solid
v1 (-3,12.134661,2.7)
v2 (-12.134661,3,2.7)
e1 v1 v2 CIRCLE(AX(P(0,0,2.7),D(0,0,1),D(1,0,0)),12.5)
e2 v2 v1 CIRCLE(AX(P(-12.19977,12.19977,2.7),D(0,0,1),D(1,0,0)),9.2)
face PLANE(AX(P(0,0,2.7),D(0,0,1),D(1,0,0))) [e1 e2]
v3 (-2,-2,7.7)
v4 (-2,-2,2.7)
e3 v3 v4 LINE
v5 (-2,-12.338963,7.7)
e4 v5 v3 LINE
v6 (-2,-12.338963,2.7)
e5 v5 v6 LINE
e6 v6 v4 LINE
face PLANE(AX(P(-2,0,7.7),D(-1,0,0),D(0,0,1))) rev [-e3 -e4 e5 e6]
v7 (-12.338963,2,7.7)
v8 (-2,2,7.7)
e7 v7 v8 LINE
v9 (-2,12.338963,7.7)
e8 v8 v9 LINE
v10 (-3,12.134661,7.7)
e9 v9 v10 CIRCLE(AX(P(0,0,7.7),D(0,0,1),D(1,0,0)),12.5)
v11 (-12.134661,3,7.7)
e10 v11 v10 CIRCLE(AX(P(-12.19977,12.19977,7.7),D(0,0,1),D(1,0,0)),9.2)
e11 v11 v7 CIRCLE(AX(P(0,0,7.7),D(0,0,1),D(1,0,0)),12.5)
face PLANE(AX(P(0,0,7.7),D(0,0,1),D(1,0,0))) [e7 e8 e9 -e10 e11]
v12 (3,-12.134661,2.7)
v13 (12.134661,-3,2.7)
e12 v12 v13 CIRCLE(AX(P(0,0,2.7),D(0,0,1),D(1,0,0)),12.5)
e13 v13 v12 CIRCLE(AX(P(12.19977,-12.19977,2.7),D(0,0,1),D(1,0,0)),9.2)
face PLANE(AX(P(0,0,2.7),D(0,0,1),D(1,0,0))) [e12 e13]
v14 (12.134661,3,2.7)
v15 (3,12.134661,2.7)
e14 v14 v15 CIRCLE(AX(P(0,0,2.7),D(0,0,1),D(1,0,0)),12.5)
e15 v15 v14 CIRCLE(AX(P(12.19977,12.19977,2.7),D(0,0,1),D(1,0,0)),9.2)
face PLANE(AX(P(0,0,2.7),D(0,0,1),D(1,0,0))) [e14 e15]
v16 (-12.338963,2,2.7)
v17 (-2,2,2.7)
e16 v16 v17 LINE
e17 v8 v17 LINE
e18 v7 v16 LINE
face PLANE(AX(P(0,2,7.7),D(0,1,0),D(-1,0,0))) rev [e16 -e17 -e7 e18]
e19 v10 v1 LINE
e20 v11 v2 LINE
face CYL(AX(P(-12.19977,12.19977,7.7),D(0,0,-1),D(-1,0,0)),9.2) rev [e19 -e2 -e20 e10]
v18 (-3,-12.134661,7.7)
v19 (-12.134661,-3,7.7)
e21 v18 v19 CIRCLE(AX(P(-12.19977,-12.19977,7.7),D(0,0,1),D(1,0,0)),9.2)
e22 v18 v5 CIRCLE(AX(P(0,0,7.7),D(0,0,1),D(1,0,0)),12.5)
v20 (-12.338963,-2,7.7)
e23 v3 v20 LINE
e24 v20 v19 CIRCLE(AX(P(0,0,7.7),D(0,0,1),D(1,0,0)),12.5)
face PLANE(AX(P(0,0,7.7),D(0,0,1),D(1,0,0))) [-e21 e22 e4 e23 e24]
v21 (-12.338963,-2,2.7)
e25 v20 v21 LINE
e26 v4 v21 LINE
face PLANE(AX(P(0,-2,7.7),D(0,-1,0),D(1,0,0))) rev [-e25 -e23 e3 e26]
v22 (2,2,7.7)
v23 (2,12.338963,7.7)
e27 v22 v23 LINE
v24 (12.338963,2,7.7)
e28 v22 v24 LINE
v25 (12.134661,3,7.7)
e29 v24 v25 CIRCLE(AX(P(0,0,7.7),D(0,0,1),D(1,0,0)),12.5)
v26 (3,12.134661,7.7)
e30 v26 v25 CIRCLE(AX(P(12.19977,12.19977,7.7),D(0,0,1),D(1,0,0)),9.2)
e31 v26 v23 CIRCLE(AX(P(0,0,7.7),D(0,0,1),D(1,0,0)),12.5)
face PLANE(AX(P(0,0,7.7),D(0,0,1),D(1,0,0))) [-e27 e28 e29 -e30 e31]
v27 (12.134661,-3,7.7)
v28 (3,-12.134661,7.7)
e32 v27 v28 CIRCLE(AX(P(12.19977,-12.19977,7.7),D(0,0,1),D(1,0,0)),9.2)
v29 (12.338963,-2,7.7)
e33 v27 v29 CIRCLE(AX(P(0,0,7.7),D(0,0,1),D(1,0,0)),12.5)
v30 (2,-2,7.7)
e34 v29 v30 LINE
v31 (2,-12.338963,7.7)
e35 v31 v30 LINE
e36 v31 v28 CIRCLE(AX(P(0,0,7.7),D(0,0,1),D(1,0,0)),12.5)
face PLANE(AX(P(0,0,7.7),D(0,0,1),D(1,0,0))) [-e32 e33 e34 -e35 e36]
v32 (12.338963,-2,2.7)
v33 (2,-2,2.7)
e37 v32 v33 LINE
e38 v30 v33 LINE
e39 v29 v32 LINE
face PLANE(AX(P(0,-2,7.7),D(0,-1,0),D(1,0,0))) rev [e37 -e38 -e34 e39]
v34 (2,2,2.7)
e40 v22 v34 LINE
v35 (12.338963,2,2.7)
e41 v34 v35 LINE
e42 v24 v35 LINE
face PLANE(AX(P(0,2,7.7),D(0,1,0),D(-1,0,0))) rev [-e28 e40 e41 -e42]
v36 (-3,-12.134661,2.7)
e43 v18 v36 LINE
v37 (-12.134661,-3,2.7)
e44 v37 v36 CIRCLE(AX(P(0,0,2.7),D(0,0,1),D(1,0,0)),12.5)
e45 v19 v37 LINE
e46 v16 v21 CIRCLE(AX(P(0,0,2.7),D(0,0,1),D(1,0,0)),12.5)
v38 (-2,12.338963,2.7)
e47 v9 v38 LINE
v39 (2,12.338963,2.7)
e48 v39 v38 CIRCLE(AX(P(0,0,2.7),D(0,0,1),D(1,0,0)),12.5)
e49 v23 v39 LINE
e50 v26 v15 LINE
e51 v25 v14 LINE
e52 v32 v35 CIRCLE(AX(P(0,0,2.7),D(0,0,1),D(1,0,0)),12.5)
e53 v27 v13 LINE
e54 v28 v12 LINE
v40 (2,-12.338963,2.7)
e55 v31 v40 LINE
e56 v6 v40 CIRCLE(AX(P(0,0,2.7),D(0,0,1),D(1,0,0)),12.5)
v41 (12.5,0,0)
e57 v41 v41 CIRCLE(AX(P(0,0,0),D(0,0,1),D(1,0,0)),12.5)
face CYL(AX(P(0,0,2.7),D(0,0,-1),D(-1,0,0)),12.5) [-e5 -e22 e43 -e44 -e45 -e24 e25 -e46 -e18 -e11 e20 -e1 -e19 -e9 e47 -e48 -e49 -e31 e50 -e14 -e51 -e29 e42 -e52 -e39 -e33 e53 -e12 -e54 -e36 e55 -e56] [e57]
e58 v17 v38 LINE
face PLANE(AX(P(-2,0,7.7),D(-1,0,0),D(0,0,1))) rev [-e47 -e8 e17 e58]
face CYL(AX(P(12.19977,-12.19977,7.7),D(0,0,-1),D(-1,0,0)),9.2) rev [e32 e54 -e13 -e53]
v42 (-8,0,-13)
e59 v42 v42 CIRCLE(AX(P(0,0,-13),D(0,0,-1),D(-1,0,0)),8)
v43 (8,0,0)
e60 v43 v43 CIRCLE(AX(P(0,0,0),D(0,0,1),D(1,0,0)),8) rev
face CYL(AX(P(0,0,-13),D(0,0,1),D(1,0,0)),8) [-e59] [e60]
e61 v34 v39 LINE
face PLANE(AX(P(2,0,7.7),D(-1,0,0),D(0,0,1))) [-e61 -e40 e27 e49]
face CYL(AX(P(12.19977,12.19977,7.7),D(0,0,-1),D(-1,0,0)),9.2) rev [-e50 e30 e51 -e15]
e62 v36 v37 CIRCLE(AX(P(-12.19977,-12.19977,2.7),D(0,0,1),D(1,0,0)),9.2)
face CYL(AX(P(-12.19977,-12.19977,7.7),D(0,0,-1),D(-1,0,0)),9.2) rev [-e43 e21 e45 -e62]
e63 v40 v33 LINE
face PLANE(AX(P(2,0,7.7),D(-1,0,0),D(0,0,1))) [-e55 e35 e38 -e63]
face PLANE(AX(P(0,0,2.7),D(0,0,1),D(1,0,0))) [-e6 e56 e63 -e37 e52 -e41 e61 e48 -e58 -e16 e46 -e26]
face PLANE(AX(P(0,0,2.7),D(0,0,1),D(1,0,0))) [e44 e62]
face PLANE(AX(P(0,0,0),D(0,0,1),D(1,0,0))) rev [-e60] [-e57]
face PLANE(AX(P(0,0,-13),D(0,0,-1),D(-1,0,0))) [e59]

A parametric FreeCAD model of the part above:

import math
import FreeCAD as App
import Part
import Sketcher
from FreeCAD import Vector

doc = App.newDocument("Part")
body = doc.addObject("PartDesign::Body", "Body")

# Sketch on XY plane
sketch1 = body.newObject("Sketcher::SketchObject", "Sketch")
sketch1.AttachmentSupport = (doc.getObject("XY_Plane"), [""])
sketch1.MapMode = "FlatFace"
sketch1.addGeometry(Part.Circle(Vector(0, 0, 0), Vector(0, 0, 1), 12), False)
sketch1.addConstraint([
    Sketcher.Constraint("Coincident", 0, 3, -1, 1),
    Sketcher.Constraint("Diameter", 0, 25.0),
])
pad1 = body.newObject("PartDesign::Pad", "Pad")
pad1.Profile = sketch1
pad1.Length = 2.7

# Sketch on XY plane
sketch2 = body.newObject("Sketcher::SketchObject", "Sketch001")
sketch2.AttachmentSupport = (doc.getObject("XY_Plane"), [""])
sketch2.MapMode = "FlatFace"
sketch2.AttachmentOffset = App.Placement(Vector(0, 0, 2.7), App.Rotation())
sketch2.addGeometry([
    Part.LineSegment(Vector(-2, 2, 0), Vector(-2, 12.3, 0)),  # 0
    Part.ArcOfCircle(Part.Circle(Vector(0, 0, 0), Vector(0, 0, 1), 12.5), math.radians(99.21), math.radians(103.89)),  # 1
    Part.ArcOfCircle(Part.Circle(Vector(-12.2, 12.2, 0), Vector(0, 0, 1), 9.2), math.radians(-90), math.radians(0)),  # 2
    Part.ArcOfCircle(Part.Circle(Vector(0, 0, 0), Vector(0, 0, 1), 12.5), math.radians(166.11), math.radians(170.79)),  # 3
    Part.LineSegment(Vector(-12.3, 2, 0), Vector(-2, 2, 0)),  # 4
    Part.ArcOfCircle(Part.Circle(Vector(0, 0, 0), Vector(0, 0, 1), 12.5), math.radians(76.11), math.radians(80.79)),  # 5
    Part.LineSegment(Vector(2, 12.3, 0), Vector(2, 2, 0)),  # 6
    Part.LineSegment(Vector(2, 2, 0), Vector(12.3, 2, 0)),  # 7
    Part.ArcOfCircle(Part.Circle(Vector(0, 0, 0), Vector(0, 0, 1), 12.5), math.radians(9.21), math.radians(13.89)),  # 8
    Part.ArcOfCircle(Part.Circle(Vector(12.2, 12.2, 0), Vector(0, 0, 1), 9.2), math.radians(-180), math.radians(-90)),  # 9
    Part.LineSegment(Vector(12.3, -2, 0), Vector(2, -2, 0)),  # 10
    Part.LineSegment(Vector(2, -2, 0), Vector(2, -12.3, 0)),  # 11
    Part.ArcOfCircle(Part.Circle(Vector(0, 0, 0), Vector(0, 0, 1), 12.5), math.radians(-80.79), math.radians(-76.11)),  # 12
    Part.ArcOfCircle(Part.Circle(Vector(12.2, -12.2, 0), Vector(0, 0, 1), 9.2), math.radians(90), math.radians(180)),  # 13
    Part.ArcOfCircle(Part.Circle(Vector(0, 0, 0), Vector(0, 0, 1), 12.5), math.radians(-13.89), math.radians(-9.21)),  # 14
    Part.LineSegment(Vector(-2, -12.3, 0), Vector(-2, -2, 0)),  # 15
    Part.LineSegment(Vector(-2, -2, 0), Vector(-12.3, -2, 0)),  # 16
    Part.ArcOfCircle(Part.Circle(Vector(0, 0, 0), Vector(0, 0, 1), 12.5), math.radians(-170.79), math.radians(-166.11)),  # 17
    Part.ArcOfCircle(Part.Circle(Vector(-12.2, -12.2, 0), Vector(0, 0, 1), 9.2), math.radians(0), math.radians(90)),  # 18
    Part.ArcOfCircle(Part.Circle(Vector(0, 0, 0), Vector(0, 0, 1), 12.5), math.radians(-103.89), math.radians(-99.21)),  # 19
], False)
sketch2.addConstraint([
    Sketcher.Constraint("Coincident", 0, 2, 1, 1),
    Sketcher.Constraint("Coincident", 1, 2, 2, 2),
    Sketcher.Constraint("Coincident", 2, 1, 3, 1),
    Sketcher.Constraint("Coincident", 3, 2, 4, 1),
    Sketcher.Constraint("Coincident", 4, 2, 0, 1),
    Sketcher.Constraint("Coincident", 5, 2, 6, 1),
    Sketcher.Constraint("Coincident", 6, 2, 7, 1),
    Sketcher.Constraint("Coincident", 7, 2, 8, 1),
    Sketcher.Constraint("Coincident", 8, 2, 9, 2),
    Sketcher.Constraint("Coincident", 9, 1, 5, 1),
    Sketcher.Constraint("Coincident", 10, 2, 11, 1),
    Sketcher.Constraint("Coincident", 11, 2, 12, 1),
    Sketcher.Constraint("Coincident", 12, 2, 13, 2),
    Sketcher.Constraint("Coincident", 13, 1, 14, 1),
    Sketcher.Constraint("Coincident", 14, 2, 10, 1),
    Sketcher.Constraint("Coincident", 15, 2, 16, 1),
    Sketcher.Constraint("Coincident", 16, 2, 17, 1),
    Sketcher.Constraint("Coincident", 17, 2, 18, 2),
    Sketcher.Constraint("Coincident", 18, 1, 19, 1),
    Sketcher.Constraint("Coincident", 19, 2, 15, 1),
    Sketcher.Constraint("Vertical", 0),
    Sketcher.Constraint("Horizontal", 4),
    Sketcher.Constraint("Vertical", 6),
    Sketcher.Constraint("Horizontal", 7),
    Sketcher.Constraint("Horizontal", 10),
    Sketcher.Constraint("Vertical", 11),
    Sketcher.Constraint("Vertical", 15),
    Sketcher.Constraint("Horizontal", 16),
    Sketcher.Constraint("Coincident", 1, 3, -1, 1),
    Sketcher.Constraint("Coincident", 3, 3, -1, 1),
    Sketcher.Constraint("Coincident", 5, 3, -1, 1),
    Sketcher.Constraint("Coincident", 8, 3, -1, 1),
    Sketcher.Constraint("Coincident", 12, 3, -1, 1),
    Sketcher.Constraint("Coincident", 14, 3, -1, 1),
    Sketcher.Constraint("Coincident", 17, 3, -1, 1),
    Sketcher.Constraint("Coincident", 19, 3, -1, 1),
    Sketcher.Constraint("Equal", 1, 3),
    Sketcher.Constraint("Equal", 3, 5),
    Sketcher.Constraint("Equal", 5, 8),
    Sketcher.Constraint("Equal", 2, 9),
    Sketcher.Constraint("Equal", 8, 12),
    Sketcher.Constraint("Equal", 9, 13),
    Sketcher.Constraint("Equal", 12, 14),
    Sketcher.Constraint("Equal", 14, 17),
    Sketcher.Constraint("Equal", 13, 18),
    Sketcher.Constraint("Equal", 17, 19),
    Sketcher.Constraint("Symmetric", 2, 3, 13, 3, -1, 1),
    Sketcher.Constraint("Symmetric", 9, 3, 18, 3, -1, 1),
    Sketcher.Constraint("Symmetric", 4, 2, 10, 2, -1, 1),
    Sketcher.Constraint("Symmetric", 6, 2, 15, 2, -1, 1),
    Sketcher.Constraint("Symmetric", 2, 3, 9, 3, -2),
    Sketcher.Constraint("Symmetric", 4, 2, 6, 2, -2),
    Sketcher.Constraint("Equal", 16, 0),
    Sketcher.Constraint("Radius", 1, 12.500001),
    Sketcher.Constraint("Radius", 2, 9.2),
    Sketcher.Constraint("DistanceX", 0, 2, -1, 1, 2.0),
    Sketcher.Constraint("DistanceX", 1, 2, -1, 1, 3.0),
    Sketcher.Constraint("DistanceY", -1, 1, 2, 1, 3.0),
])
pad2 = body.newObject("PartDesign::Pad", "Pad001")
pad2.Profile = sketch2
pad2.Length = 5

# Sketch on XY plane
sketch3 = body.newObject("Sketcher::SketchObject", "Sketch002")
sketch3.AttachmentSupport = (doc.getObject("XY_Plane"), [""])
sketch3.MapMode = "FlatFace"
sketch3.addGeometry(Part.Circle(Vector(0, 0, 0), Vector(0, 0, 1), 8), False)
sketch3.addConstraint([
    Sketcher.Constraint("Coincident", 0, 3, -1, 1),
    Sketcher.Constraint("Diameter", 0, 16.0),
])
pad3 = body.newObject("PartDesign::Pad", "Pad002")
pad3.Profile = sketch3
pad3.Length = 13
pad3.Reversed = True

doc.recompute()
